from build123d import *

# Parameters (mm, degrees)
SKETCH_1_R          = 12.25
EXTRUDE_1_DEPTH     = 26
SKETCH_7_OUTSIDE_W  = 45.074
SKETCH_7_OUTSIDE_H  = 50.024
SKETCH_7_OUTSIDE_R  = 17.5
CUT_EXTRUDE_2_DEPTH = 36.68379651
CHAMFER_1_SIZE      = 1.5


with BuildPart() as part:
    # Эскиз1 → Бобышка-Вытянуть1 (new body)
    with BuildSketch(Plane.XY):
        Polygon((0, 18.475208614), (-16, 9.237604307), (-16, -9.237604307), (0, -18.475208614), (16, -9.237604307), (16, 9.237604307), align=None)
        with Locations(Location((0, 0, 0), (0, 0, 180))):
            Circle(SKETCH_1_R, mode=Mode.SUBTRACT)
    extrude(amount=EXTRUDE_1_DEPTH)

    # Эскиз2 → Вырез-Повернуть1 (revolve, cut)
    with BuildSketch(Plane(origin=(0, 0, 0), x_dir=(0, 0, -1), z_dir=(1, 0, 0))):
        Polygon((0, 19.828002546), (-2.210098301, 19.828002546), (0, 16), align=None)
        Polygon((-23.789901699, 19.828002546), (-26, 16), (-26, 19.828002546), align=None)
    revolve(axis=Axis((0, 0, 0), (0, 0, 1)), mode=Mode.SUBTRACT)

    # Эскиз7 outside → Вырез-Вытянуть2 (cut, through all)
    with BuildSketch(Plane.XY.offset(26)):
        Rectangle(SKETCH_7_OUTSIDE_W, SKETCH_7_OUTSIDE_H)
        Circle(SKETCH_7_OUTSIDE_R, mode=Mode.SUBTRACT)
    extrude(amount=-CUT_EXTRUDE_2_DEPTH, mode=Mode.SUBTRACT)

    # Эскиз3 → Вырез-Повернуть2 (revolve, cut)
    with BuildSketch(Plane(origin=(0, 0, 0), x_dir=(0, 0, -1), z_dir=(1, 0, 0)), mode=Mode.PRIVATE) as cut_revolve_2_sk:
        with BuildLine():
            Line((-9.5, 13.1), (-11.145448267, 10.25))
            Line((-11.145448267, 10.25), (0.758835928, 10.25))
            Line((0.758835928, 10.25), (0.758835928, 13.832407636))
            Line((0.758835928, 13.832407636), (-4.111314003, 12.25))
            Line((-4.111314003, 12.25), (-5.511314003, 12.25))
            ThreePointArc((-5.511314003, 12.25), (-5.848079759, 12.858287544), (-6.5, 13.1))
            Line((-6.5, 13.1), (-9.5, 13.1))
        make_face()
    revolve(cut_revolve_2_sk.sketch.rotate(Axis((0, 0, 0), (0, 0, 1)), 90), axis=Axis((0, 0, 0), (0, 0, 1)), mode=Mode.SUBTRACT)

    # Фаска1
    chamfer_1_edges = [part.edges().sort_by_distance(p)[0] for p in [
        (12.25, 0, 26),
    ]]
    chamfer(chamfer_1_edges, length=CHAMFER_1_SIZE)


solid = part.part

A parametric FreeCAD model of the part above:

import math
import FreeCAD as App
import Part
import Sketcher
from FreeCAD import Vector
Q = App.Units.Quantity


def edges_at(feature, points):
    """Names of the edges that pass closest to the given points."""
    edges = feature.Shape.Edges
    near = lambda p: min(range(len(edges)), key=lambda i: edges[i].distToShape(Part.Vertex(*p))[0])
    return sorted({f"Edge{near(p) + 1}" for p in points})


def add_polygon(sketch, points):
    """Adds a closed chain of lines whose ends are joined by coincident constraints."""
    first, n = sketch.GeometryCount, len(points)
    for a, b in zip(points, points[1:] + points[:1]):
        sketch.addGeometry(Part.LineSegment(App.Vector(*a, 0), App.Vector(*b, 0)), False)
    for i in range(n):
        sketch.addConstraint(Sketcher.Constraint("Coincident", first + i, 2, first + (i + 1) % n, 1))

doc = App.newDocument("Part")
body = doc.addObject("PartDesign::Body", "Body")

sketch1 = body.newObject("Sketcher::SketchObject", "Sketch")
sketch1.AttachmentSupport = (doc.getObject("XY_Plane"), [""])
sketch1.MapMode = "FlatFace"
add_polygon(sketch1, [(0, 18), (-16, 9), (-16, -9), (0, -18), (16, -9), (16, 9)])
sketch1.addGeometry(Part.Circle(Vector(0, 0, 0), Vector(0, 0, 1), 12), False)
sketch1.addConstraint([
    Sketcher.Constraint("Vertical", 1),
    Sketcher.Constraint("Vertical", 4),
    Sketcher.Constraint("Coincident", 6, 3, -1, 1),
    Sketcher.Constraint("Symmetric", 0, 2, 3, 2, -1, 1),
    Sketcher.Constraint("Symmetric", 2, 2, 5, 2, -1, 1),
    Sketcher.Constraint("PointOnObject", 2, 2, -2),
    Sketcher.Constraint("Parallel", 2, 5),
    Sketcher.Constraint("Horizontal", 1, 2, 3, 2),
    Sketcher.Constraint("Diameter", 6, 24.5),
    Sketcher.Constraint("Angle", 0, Q("-150 deg")),
    Sketcher.Constraint("DistanceX", 0, 2, -1, 1, 16.0),
    Sketcher.Constraint("DistanceY", 1, 2, 1, 1, 18.475209),
])
pad1 = body.newObject("PartDesign::Pad", "Pad")
pad1.Profile = sketch1
pad1.Length = 26

sketch2 = body.newObject("Sketcher::SketchObject", "Sketch001")
sketch2.AttachmentSupport = (doc.getObject("YZ_Plane"), [""])
sketch2.MapMode = "FlatFace"
add_polygon(sketch2, [(19.8, 0), (19.8, 2.2), (16, 0)])
add_polygon(sketch2, [(16, 26), (19.8, 23.8), (19.8, 26)])
sketch2.addConstraint([
    Sketcher.Constraint("Vertical", 0),
    Sketcher.Constraint("Horizontal", 2),
    Sketcher.Constraint("Vertical", 4),
    Sketcher.Constraint("Horizontal", 5),
    Sketcher.Constraint("PointOnObject", 1, 2, -1),
    Sketcher.Constraint("Vertical", 2, 2, 3, 2),
    Sketcher.Constraint("Vertical", 1, 2, 5, 2),
    Sketcher.Constraint("Equal", 0, 4),
    Sketcher.Constraint("Angle", 1, Q("-150 deg")),
    Sketcher.Constraint("DistanceX", -1, 1, 1, 2, 16.0),
    Sketcher.Constraint("DistanceY", -1, 1, 4, 2, 26.0),
    Sketcher.Constraint("DistanceY", 0, 1, 0, 2, 2.210098),
])
groove = body.newObject("PartDesign::Groove", "Groove")
groove.Profile = sketch2
groove.ReferenceAxis = (sketch2, ["V_Axis"])
groove.Angle = 360

sketch3 = body.newObject("Sketcher::SketchObject", "Sketch002")
sketch3.AttachmentSupport = (doc.getObject("XY_Plane"), [""])
sketch3.MapMode = "FlatFace"
sketch3.AttachmentOffset = App.Placement(Vector(0, 0, 26), App.Rotation())
add_polygon(sketch3, [(-23, 25), (-23, -25), (23, -25), (23, 25)])
sketch3.addGeometry(Part.Circle(Vector(0, 0, 0), Vector(0, 0, 1), 18), False)
sketch3.addConstraint([
    Sketcher.Constraint("Vertical", 0),
    Sketcher.Constraint("Horizontal", 1),
    Sketcher.Constraint("Vertical", 2),
    Sketcher.Constraint("Horizontal", 3),
    Sketcher.Constraint("Coincident", 4, 3, -1, 1),
    Sketcher.Constraint("Symmetric", 0, 2, 2, 2, -1, 1),
    Sketcher.Constraint("Diameter", 4, 35.0),
    Sketcher.Constraint("DistanceX", 1, 1, 1, 2, 45.074),
    Sketcher.Constraint("DistanceY", 0, 2, 0, 1, 50.024),
])
pocket1 = body.newObject("PartDesign::Pocket", "Pocket")
pocket1.Profile = sketch3
pocket1.Type = "ThroughAll"

sketch4 = body.newObject("Sketcher::SketchObject", "Sketch003")
sketch4.AttachmentSupport = (doc.getObject("YZ_Plane"), [""])
sketch4.MapMode = "FlatFace"
sketch4.addGeometry([
    Part.LineSegment(Vector(13.1, 9.5, 0), Vector(10.2, 11.1, 0)),
    Part.LineSegment(Vector(10.2, 11.1, 0), Vector(10.2, -0.8, 0)),
    Part.LineSegment(Vector(10.2, -0.8, 0), Vector(13.8, -0.8, 0)),
    Part.LineSegment(Vector(13.8, -0.8, 0), Vector(12.2, 4.1, 0)),
    Part.LineSegment(Vector(12.2, 4.1, 0), Vector(12.2, 5.5, 0)),
    Part.ArcOfCircle(Part.Circle(Vector(12.1, 6.5, 0), Vector(0, 0, 1), 1), math.radians(-81), math.radians(0)),
    Part.LineSegment(Vector(13.1, 6.5, 0), Vector(13.1, 9.5, 0)),
], False)
sketch4.addConstraint([
    Sketcher.Constraint("Coincident", 0, 2, 1, 1),
    Sketcher.Constraint("Coincident", 1, 2, 2, 1),
    Sketcher.Constraint("Coincident", 2, 2, 3, 1),
    Sketcher.Constraint("Coincident", 3, 2, 4, 1),
    Sketcher.Constraint("Coincident", 4, 2, 5, 1),
    Sketcher.Constraint("Tangent", 5, 2, 6, 1),
    Sketcher.Constraint("Coincident", 6, 2, 0, 1),
    Sketcher.Constraint("Vertical", 1),
    Sketcher.Constraint("Horizontal", 2),
    Sketcher.Constraint("Vertical", 4),
    Sketcher.Constraint("Vertical", 6),
    Sketcher.Constraint("Radius", 5, 1.0),
    Sketcher.Constraint("DistanceY", 6, 1, 6, 2, 3.0),
    Sketcher.Constraint("Angle", 0, Q("150 deg")),
    Sketcher.Constraint("Angle", 3, Q("108 deg")),
    Sketcher.Constraint("DistanceY", 4, 1, 4, 2, 1.4),
    Sketcher.Constraint("DistanceX", 1, 2, 3, 2, 2.0),
    Sketcher.Constraint("DistanceX", -1, 1, 5, 3, 12.1),
    Sketcher.Constraint("DistanceY", -1, 1, 5, 3, 6.5),
    Sketcher.Constraint("DistanceX", -1, 1, 0, 2, 10.25),
    Sketcher.Constraint("Distance", 3, 5.120779),
])
groove2 = body.newObject("PartDesign::Groove", "Groove001")
groove2.Profile = sketch4
groove2.ReferenceAxis = (sketch4, ["V_Axis"])
groove2.Angle = 360
doc.recompute()

chamfer = body.newObject("PartDesign::Chamfer", "Chamfer")
chamfer.Base = (groove2, edges_at(groove2, [(12.25, 0, 26)]))
chamfer.Size = 1.5

doc.recompute()
